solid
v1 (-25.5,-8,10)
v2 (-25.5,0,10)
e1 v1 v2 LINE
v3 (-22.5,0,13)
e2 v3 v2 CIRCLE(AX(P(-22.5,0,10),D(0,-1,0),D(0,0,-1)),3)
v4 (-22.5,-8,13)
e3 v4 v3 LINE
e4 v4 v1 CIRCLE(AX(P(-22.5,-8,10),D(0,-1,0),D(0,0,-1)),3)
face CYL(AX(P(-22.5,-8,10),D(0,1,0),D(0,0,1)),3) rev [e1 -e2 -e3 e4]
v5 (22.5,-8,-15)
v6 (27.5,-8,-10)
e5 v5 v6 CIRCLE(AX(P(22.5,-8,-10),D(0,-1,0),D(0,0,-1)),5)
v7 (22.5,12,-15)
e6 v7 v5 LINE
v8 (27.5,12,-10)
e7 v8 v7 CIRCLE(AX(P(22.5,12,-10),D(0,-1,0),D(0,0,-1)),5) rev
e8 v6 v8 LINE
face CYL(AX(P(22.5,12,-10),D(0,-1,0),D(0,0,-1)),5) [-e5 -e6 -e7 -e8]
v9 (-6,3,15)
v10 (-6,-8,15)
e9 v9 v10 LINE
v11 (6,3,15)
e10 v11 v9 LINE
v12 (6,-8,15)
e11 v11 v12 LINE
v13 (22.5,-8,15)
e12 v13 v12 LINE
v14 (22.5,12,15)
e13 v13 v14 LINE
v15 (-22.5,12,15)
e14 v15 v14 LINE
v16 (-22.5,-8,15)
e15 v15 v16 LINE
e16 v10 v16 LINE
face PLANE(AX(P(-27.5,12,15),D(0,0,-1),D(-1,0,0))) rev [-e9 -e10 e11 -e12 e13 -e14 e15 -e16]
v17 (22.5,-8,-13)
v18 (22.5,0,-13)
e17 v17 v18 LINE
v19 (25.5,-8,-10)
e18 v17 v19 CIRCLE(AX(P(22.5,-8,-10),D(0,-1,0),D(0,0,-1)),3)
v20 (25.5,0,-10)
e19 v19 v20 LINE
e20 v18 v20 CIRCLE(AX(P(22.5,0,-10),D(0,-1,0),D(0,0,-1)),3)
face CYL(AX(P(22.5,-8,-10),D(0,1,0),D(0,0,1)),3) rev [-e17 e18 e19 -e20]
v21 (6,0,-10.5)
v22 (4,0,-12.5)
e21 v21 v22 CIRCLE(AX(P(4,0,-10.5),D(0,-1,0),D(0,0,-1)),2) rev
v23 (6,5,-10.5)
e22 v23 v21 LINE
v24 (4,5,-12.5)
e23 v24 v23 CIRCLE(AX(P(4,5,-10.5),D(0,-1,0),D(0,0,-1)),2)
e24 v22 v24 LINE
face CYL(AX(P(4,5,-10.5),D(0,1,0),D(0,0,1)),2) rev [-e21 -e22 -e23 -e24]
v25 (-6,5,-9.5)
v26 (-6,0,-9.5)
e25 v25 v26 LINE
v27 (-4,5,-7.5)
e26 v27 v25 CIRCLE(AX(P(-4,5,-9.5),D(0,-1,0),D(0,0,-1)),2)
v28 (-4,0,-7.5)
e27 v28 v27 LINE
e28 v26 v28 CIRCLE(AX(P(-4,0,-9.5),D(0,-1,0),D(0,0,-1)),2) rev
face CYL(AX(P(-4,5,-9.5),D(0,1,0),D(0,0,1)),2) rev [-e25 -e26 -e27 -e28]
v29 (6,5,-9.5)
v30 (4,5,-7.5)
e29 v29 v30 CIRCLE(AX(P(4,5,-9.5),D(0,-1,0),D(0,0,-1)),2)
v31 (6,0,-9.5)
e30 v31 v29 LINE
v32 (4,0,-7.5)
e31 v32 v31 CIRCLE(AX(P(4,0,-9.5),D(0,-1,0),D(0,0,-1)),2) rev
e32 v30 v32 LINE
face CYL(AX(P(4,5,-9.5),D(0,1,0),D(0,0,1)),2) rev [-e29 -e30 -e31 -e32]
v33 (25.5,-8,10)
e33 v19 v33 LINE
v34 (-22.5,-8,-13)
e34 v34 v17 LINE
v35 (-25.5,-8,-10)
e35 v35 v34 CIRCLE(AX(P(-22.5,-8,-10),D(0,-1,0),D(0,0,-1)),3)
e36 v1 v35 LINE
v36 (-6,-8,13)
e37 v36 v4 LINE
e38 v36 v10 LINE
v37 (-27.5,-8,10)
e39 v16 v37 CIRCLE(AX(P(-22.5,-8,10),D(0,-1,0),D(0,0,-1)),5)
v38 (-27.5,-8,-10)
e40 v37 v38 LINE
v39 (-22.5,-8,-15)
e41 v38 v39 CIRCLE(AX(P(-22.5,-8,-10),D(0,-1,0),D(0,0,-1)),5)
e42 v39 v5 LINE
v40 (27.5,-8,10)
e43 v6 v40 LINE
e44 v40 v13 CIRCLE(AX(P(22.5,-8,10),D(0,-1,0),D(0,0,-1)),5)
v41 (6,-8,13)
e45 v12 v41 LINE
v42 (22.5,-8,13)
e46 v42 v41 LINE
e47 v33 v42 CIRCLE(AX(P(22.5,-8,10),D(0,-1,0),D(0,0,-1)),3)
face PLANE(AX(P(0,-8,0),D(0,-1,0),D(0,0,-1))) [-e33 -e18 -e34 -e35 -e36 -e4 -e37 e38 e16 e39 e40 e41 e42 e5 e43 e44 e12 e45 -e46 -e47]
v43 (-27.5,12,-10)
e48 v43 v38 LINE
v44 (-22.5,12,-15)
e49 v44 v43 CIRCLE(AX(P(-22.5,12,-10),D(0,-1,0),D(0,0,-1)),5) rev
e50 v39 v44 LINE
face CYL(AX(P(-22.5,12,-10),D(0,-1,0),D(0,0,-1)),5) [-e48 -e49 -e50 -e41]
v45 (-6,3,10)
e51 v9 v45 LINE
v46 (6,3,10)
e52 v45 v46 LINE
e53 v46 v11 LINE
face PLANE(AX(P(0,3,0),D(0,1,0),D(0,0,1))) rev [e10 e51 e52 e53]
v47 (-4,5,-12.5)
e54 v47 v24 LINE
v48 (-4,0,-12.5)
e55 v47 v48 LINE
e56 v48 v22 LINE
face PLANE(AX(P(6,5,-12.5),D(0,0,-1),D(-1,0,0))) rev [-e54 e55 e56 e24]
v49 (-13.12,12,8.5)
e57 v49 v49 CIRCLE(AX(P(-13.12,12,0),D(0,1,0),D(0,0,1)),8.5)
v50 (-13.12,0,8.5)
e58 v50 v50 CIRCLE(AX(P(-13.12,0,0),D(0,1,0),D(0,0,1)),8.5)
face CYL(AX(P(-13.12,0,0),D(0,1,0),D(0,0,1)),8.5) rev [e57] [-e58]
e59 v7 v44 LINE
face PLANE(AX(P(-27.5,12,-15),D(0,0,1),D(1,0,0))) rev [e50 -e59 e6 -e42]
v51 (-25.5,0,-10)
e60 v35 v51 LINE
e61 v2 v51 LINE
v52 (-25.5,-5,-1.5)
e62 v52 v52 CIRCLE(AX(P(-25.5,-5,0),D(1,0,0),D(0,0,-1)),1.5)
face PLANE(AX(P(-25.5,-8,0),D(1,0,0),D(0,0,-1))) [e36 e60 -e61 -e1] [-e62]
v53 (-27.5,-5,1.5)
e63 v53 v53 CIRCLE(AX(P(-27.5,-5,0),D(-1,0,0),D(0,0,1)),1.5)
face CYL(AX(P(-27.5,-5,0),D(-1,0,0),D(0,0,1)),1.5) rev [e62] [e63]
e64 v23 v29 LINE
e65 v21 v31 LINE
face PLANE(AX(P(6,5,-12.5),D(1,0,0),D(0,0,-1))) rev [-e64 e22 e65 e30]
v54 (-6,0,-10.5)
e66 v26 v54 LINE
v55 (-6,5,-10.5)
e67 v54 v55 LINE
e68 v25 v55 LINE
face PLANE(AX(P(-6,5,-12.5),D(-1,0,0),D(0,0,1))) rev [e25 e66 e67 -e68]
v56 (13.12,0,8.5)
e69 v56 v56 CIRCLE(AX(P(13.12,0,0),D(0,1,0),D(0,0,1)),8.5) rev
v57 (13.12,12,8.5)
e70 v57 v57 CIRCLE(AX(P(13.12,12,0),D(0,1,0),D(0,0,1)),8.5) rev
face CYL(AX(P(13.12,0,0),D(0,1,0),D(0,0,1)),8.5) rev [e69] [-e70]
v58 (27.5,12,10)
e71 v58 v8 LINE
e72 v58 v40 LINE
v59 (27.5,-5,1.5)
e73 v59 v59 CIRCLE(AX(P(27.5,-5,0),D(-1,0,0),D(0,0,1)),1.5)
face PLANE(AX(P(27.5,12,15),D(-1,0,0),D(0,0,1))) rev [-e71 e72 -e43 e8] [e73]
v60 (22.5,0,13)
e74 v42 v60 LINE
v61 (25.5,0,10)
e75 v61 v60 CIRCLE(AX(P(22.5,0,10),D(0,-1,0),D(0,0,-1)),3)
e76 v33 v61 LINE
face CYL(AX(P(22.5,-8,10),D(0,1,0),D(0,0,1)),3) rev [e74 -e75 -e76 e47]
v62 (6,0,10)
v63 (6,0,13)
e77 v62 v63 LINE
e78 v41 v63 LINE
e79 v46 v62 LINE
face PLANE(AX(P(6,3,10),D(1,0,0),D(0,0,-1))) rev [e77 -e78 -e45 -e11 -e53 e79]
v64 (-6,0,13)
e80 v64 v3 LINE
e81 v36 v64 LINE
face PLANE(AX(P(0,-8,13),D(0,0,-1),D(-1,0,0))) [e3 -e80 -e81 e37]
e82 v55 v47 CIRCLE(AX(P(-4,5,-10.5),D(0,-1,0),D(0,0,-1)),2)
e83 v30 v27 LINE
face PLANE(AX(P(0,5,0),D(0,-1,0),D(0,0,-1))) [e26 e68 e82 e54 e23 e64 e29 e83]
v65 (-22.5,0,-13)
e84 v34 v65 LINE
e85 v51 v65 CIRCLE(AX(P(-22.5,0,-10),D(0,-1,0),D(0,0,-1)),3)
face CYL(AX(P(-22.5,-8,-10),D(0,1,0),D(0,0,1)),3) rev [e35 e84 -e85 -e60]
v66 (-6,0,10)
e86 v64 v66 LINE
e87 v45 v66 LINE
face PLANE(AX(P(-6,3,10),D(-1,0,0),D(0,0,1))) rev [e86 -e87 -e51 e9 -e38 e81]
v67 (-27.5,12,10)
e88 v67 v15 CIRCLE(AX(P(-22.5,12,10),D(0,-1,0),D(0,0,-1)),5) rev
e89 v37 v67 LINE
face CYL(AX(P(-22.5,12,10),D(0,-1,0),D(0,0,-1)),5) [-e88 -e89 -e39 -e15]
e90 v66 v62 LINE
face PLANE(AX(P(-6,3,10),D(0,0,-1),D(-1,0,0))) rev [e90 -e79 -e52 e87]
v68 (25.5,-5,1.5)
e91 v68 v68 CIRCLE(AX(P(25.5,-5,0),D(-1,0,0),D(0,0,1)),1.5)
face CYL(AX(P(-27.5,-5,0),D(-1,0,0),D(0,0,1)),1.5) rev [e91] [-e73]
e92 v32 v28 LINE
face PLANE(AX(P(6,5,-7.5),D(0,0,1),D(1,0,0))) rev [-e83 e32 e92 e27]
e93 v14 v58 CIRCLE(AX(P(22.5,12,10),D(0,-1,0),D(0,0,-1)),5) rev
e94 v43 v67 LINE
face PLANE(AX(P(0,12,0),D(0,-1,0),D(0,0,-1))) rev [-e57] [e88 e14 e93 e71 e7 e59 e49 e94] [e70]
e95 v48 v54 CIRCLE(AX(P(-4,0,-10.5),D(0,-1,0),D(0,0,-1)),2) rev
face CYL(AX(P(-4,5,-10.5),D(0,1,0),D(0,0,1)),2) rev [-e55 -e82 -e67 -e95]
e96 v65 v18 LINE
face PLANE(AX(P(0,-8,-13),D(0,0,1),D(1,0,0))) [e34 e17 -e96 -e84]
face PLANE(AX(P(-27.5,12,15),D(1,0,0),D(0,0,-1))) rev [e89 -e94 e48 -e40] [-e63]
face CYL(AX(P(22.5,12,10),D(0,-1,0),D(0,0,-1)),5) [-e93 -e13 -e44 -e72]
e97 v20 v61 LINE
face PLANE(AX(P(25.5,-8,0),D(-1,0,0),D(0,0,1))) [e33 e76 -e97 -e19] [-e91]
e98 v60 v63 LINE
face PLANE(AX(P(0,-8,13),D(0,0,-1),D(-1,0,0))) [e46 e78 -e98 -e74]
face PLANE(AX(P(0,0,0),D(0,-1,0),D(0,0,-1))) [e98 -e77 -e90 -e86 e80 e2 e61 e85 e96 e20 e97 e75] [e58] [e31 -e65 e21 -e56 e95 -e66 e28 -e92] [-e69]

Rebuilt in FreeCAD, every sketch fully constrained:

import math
import FreeCAD as App
import Part
import Sketcher

V = App.Vector


def edges_at(feature, points):
    """Names of the edges that pass closest to the given points."""
    edges = feature.Shape.Edges
    near = lambda p: min(range(len(edges)), key=lambda i: edges[i].distToShape(Part.Vertex(*p))[0])
    return sorted({f"Edge{near(p) + 1}" for p in points})


def add_polygon(sketch, points):
    """Adds a closed chain of lines whose ends are joined by coincident constraints."""
    first, n = sketch.GeometryCount, len(points)
    for a, b in zip(points, points[1:] + points[:1]):
        sketch.addGeometry(Part.LineSegment(App.Vector(*a, 0), App.Vector(*b, 0)), False)
    for i in range(n):
        sketch.addConstraint(Sketcher.Constraint("Coincident", first + i, 2, first + (i + 1) % n, 1))

doc = App.newDocument("Part")
body = doc.addObject("PartDesign::Body", "Body")

sketch1 = body.newObject("Sketcher::SketchObject", "Sketch")
sketch1.AttachmentSupport = (doc.getObject("XZ_Plane"), [""])
sketch1.MapMode = "FlatFace"
add_polygon(sketch1, [(-27.5, -15), (-27.5, 15), (27.5, 15), (27.5, -15)])
sketch1.addConstraint(Sketcher.Constraint("Vertical", 0))
sketch1.addConstraint(Sketcher.Constraint("Horizontal", 1))
sketch1.addConstraint(Sketcher.Constraint("Vertical", 2))
sketch1.addConstraint(Sketcher.Constraint("Horizontal", 3))
sketch1.addConstraint(Sketcher.Constraint("Symmetric", 0, 2, 2, 2, -1, 1))
sketch1.addConstraint(Sketcher.Constraint("DistanceX", 1, 1, 1, 2, 55.0))
sketch1.addConstraint(Sketcher.Constraint("DistanceY", 0, 1, 0, 2, 30.0))
pad1 = body.newObject("PartDesign::Pad", "Pad")
pad1.Profile = sketch1
pad1.Length = 12
pad1.Reversed = True

sketch2 = body.newObject("Sketcher::SketchObject", "Sketch001")
sketch2.AttachmentSupport = (doc.getObject("XZ_Plane"), [""])
sketch2.MapMode = "FlatFace"
sketch2.AttachmentOffset = App.Placement(V(0, 0, -12), App.Rotation())
sketch2.addGeometry(Part.Circle(V(-13.12, 0, 0), V(0, 0, 1), 8.5), False)
sketch2.addGeometry(Part.Circle(V(13.12, 0, 0), V(0, 0, 1), 8.5), False)
sketch2.addConstraint(Sketcher.Constraint("Equal", 0, 1))
sketch2.addConstraint(Sketcher.Constraint("Symmetric", 0, 3, 1, 3, -1, 1))
sketch2.addConstraint(Sketcher.Constraint("PointOnObject", 0, 3, -1))
sketch2.addConstraint(Sketcher.Constraint("Diameter", 0, 17.0))
sketch2.addConstraint(Sketcher.Constraint("DistanceX", 0, 3, -1, 1, 13.12))
pocket1 = body.newObject("PartDesign::Pocket", "Pocket")
pocket1.Profile = sketch2
pocket1.Type = "ThroughAll"
pocket1.Reversed = True

sketch3 = body.newObject("Sketcher::SketchObject", "Sketch002")
sketch3.AttachmentSupport = (doc.getObject("XZ_Plane"), [""])
sketch3.MapMode = "FlatFace"
add_polygon(sketch3, [(-6, -7.5), (-6, -12.5), (6, -12.5), (6, -7.5)])
sketch3.addConstraint(Sketcher.Constraint("Vertical", 0))
sketch3.addConstraint(Sketcher.Constraint("Horizontal", 1))
sketch3.addConstraint(Sketcher.Constraint("Vertical", 2))
sketch3.addConstraint(Sketcher.Constraint("Horizontal", 3))
sketch3.addConstraint(Sketcher.Constraint("DistanceX", 1, 1, 1, 2, 12.0))
sketch3.addConstraint(Sketcher.Constraint("DistanceY", 0, 2, 0, 1, 5.0))
sketch3.addConstraint(Sketcher.Constraint("DistanceX", 0, 2, -1, 1, 6.0))
sketch3.addConstraint(Sketcher.Constraint("DistanceY", 0, 2, -1, 1, 12.5))
pocket2 = body.newObject("PartDesign::Pocket", "Pocket001")
pocket2.Profile = sketch3
pocket2.Length = 5
doc.recompute()

fillet = body.newObject("PartDesign::Fillet", "Fillet")
fillet.Base = (pocket2, edges_at(pocket2, [
    (-6, 2.5, -12.5),
    (-6, 2.5, -7.5),
    (6, 2.5, -7.5),
    (6, 2.5, -12.5),
]))
fillet.Radius = 2

sketch4 = body.newObject("Sketcher::SketchObject", "Sketch003")
sketch4.AttachmentSupport = (doc.getObject("XZ_Plane"), [""])
sketch4.MapMode = "FlatFace"
add_polygon(sketch4, [(-6, 15), (-6, 10), (6, 10), (6, 15)])
sketch4.addConstraint(Sketcher.Constraint("Vertical", 0))
sketch4.addConstraint(Sketcher.Constraint("Horizontal", 1))
sketch4.addConstraint(Sketcher.Constraint("Vertical", 2))
sketch4.addConstraint(Sketcher.Constraint("Horizontal", 3))
sketch4.addConstraint(Sketcher.Constraint("DistanceX", 1, 1, 1, 2, 12.0))
sketch4.addConstraint(Sketcher.Constraint("DistanceY", 0, 2, 0, 1, 5.0))
sketch4.addConstraint(Sketcher.Constraint("DistanceX", 0, 2, -1, 1, 6.0))
sketch4.addConstraint(Sketcher.Constraint("DistanceY", -1, 1, 0, 2, 10.0))
pocket3 = body.newObject("PartDesign::Pocket", "Pocket002")
pocket3.Profile = sketch4
pocket3.Length = 3
doc.recompute()

fillet2 = body.newObject("PartDesign::Fillet", "Fillet001")
fillet2.Base = (pocket3, edges_at(pocket3, [
    (27.5, 6, 15),
    (-27.5, 6, 15),
    (-27.5, 6, -15),
    (27.5, 6, -15),
]))
fillet2.Radius = 5

sketch5 = body.newObject("Sketcher::SketchObject", "Sketch004")
sketch5.AttachmentSupport = (doc.getObject("XZ_Plane"), [""])
sketch5.MapMode = "FlatFace"
sketch5.addGeometry(Part.LineSegment(V(25.5, 10, 0), V(25.5, -10, 0)), False)
sketch5.addGeometry(Part.ArcOfCircle(Part.Circle(V(22.5, -10, 0), V(0, 0, 1), 3), math.radians(-90), math.radians(0)), False)
sketch5.addGeometry(Part.LineSegment(V(22.5, -13, 0), V(-22.5, -13, 0)), False)
sketch5.addGeometry(Part.ArcOfCircle(Part.Circle(V(-22.5, -10, 0), V(0, 0, 1), 3), math.radians(180), math.radians(270)), False)
sketch5.addGeometry(Part.LineSegment(V(-25.5, -10, 0), V(-25.5, 10, 0)), False)
sketch5.addGeometry(Part.ArcOfCircle(Part.Circle(V(-22.5, 10, 0), V(0, 0, 1), 3), math.radians(90), math.radians(180)), False)
sketch5.addGeometry(Part.LineSegment(V(-22.5, 13, 0), V(-6, 13, 0)), False)
sketch5.addGeometry(Part.LineSegment(V(-6, 13, 0), V(-6, 15, 0)), False)
sketch5.addGeometry(Part.LineSegment(V(-6, 15, 0), V(-22.5, 15, 0)), False)
sketch5.addGeometry(Part.ArcOfCircle(Part.Circle(V(-22.5, 10, 0), V(0, 0, 1), 5), math.radians(90), math.radians(180)), False)
sketch5.addGeometry(Part.LineSegment(V(-27.5, 10, 0), V(-27.5, -10, 0)), False)
sketch5.addGeometry(Part.ArcOfCircle(Part.Circle(V(-22.5, -10, 0), V(0, 0, 1), 5), math.radians(180), math.radians(270)), False)
sketch5.addGeometry(Part.LineSegment(V(-22.5, -15, 0), V(22.5, -15, 0)), False)
sketch5.addGeometry(Part.ArcOfCircle(Part.Circle(V(22.5, -10, 0), V(0, 0, 1), 5), math.radians(-90), math.radians(0)), False)
sketch5.addGeometry(Part.LineSegment(V(27.5, -10, 0), V(27.5, 10, 0)), False)
sketch5.addGeometry(Part.ArcOfCircle(Part.Circle(V(22.5, 10, 0), V(0, 0, 1), 5), math.radians(0), math.radians(90)), False)
sketch5.addGeometry(Part.LineSegment(V(22.5, 15, 0), V(6, 15, 0)), False)
sketch5.addGeometry(Part.LineSegment(V(6, 15, 0), V(6, 13, 0)), False)
sketch5.addGeometry(Part.LineSegment(V(6, 13, 0), V(22.5, 13, 0)), False)
sketch5.addGeometry(Part.ArcOfCircle(Part.Circle(V(22.5, 10, 0), V(0, 0, 1), 3), math.radians(0), math.radians(90)), False)
sketch5.addConstraint(Sketcher.Constraint("Tangent", 0, 2, 1, 2))
sketch5.addConstraint(Sketcher.Constraint("Tangent", 1, 1, 2, 1))
sketch5.addConstraint(Sketcher.Constraint("Tangent", 2, 2, 3, 2))
sketch5.addConstraint(Sketcher.Constraint("Tangent", 3, 1, 4, 1))
sketch5.addConstraint(Sketcher.Constraint("Tangent", 4, 2, 5, 2))
sketch5.addConstraint(Sketcher.Constraint("Tangent", 5, 1, 6, 1))
sketch5.addConstraint(Sketcher.Constraint("Coincident", 6, 2, 7, 1))
sketch5.addConstraint(Sketcher.Constraint("Coincident", 7, 2, 8, 1))
sketch5.addConstraint(Sketcher.Constraint("Tangent", 8, 2, 9, 1))
sketch5.addConstraint(Sketcher.Constraint("Tangent", 9, 2, 10, 1))
sketch5.addConstraint(Sketcher.Constraint("Tangent", 10, 2, 11, 1))
sketch5.addConstraint(Sketcher.Constraint("Tangent", 11, 2, 12, 1))
sketch5.addConstraint(Sketcher.Constraint("Tangent", 12, 2, 13, 1))
sketch5.addConstraint(Sketcher.Constraint("Tangent", 13, 2, 14, 1))
sketch5.addConstraint(Sketcher.Constraint("Tangent", 14, 2, 15, 1))
sketch5.addConstraint(Sketcher.Constraint("Tangent", 15, 2, 16, 1))
sketch5.addConstraint(Sketcher.Constraint("Coincident", 16, 2, 17, 1))
sketch5.addConstraint(Sketcher.Constraint("Coincident", 17, 2, 18, 1))
sketch5.addConstraint(Sketcher.Constraint("Tangent", 18, 2, 19, 2))
sketch5.addConstraint(Sketcher.Constraint("Tangent", 19, 1, 0, 1))
sketch5.addConstraint(Sketcher.Constraint("Vertical", 0))
sketch5.addConstraint(Sketcher.Constraint("Horizontal", 2))
sketch5.addConstraint(Sketcher.Constraint("Vertical", 4))
sketch5.addConstraint(Sketcher.Constraint("Horizontal", 6))
sketch5.addConstraint(Sketcher.Constraint("Vertical", 7))
sketch5.addConstraint(Sketcher.Constraint("Horizontal", 8))
sketch5.addConstraint(Sketcher.Constraint("Vertical", 10))
sketch5.addConstraint(Sketcher.Constraint("Horizontal", 12))
sketch5.addConstraint(Sketcher.Constraint("Vertical", 14))
sketch5.addConstraint(Sketcher.Constraint("Horizontal", 16))
sketch5.addConstraint(Sketcher.Constraint("Vertical", 17))
sketch5.addConstraint(Sketcher.Constraint("Horizontal", 18))
sketch5.addConstraint(Sketcher.Constraint("Coincident", 9, 3, 5, 3))
sketch5.addConstraint(Sketcher.Constraint("Coincident", 11, 3, 3, 3))
sketch5.addConstraint(Sketcher.Constraint("Coincident", 13, 3, 1, 3))
sketch5.addConstraint(Sketcher.Constraint("Coincident", 19, 3, 15, 3))
sketch5.addConstraint(Sketcher.Constraint("Equal", 1, 3))
sketch5.addConstraint(Sketcher.Constraint("Equal", 3, 5))
sketch5.addConstraint(Sketcher.Constraint("Equal", 13, 15))
sketch5.addConstraint(Sketcher.Constraint("Symmetric", 1, 3, 5, 3, -1, 1))
sketch5.addConstraint(Sketcher.Constraint("Symmetric", 7, 2, 16, 2, -2))
sketch5.addConstraint(Sketcher.Constraint("Radius", 1, 3.0))
sketch5.addConstraint(Sketcher.Constraint("Radius", 9, 5.0))
sketch5.addConstraint(Sketcher.Constraint("DistanceX", 2, 2, 2, 1, 45.0))
sketch5.addConstraint(Sketcher.Constraint("DistanceY", 0, 2, 0, 1, 20.0))
sketch5.addConstraint(Sketcher.Constraint("DistanceX", 6, 1, 6, 2, 16.5))
pad2 = body.newObject("PartDesign::Pad", "Pad001")
pad2.Profile = sketch5
pad2.Length = 8

sketch6 = body.newObject("Sketcher::SketchObject", "Sketch005")
sketch6.AttachmentSupport = (doc.getObject("YZ_Plane"), [""])
sketch6.MapMode = "FlatFace"
sketch6.AttachmentOffset = App.Placement(V(0, 0, -27.5), App.Rotation())
sketch6.addGeometry(Part.Circle(V(-5, 0, 0), V(0, 0, 1), 1.5), False)
sketch6.addConstraint(Sketcher.Constraint("PointOnObject", 0, 3, -1))
sketch6.addConstraint(Sketcher.Constraint("Diameter", 0, 3.0))
sketch6.addConstraint(Sketcher.Constraint("DistanceX", 0, 3, -1, 1, 5.0))
doc.recompute()
hole = body.newObject("PartDesign::Hole", "Hole")
hole.Profile = sketch6
hole.ThreadType = "None"
hole.Diameter = 3
hole.DepthType = "ThroughAll"
hole.Reversed = True

doc.recompute()
